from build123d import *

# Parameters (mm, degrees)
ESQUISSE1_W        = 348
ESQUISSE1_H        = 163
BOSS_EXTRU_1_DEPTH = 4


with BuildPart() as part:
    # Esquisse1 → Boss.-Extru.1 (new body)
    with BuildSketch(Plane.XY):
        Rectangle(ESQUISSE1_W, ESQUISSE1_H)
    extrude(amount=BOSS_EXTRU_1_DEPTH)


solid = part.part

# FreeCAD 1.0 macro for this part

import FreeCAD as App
import Part
import Sketcher
from FreeCAD import Vector

doc = App.newDocument("Part")
body = doc.addObject("PartDesign::Body", "Body")

# Sketch on XY plane
sketch1 = doc.addObject("Sketcher::SketchObject", "Sketch")
body.addObject(sketch1)
sketch1.AttachmentSupport = (doc.XY_Plane, [""])
sketch1.MapMode = "FlatFace"
sketch1.addGeometry(Part.LineSegment(Vector(-174, 82, 0), Vector(-174, -82, 0)), False)
sketch1.addGeometry(Part.LineSegment(Vector(-174, -82, 0), Vector(174, -82, 0)), False)
sketch1.addGeometry(Part.LineSegment(Vector(174, -82, 0), Vector(174, 82, 0)), False)
sketch1.addGeometry(Part.LineSegment(Vector(174, 82, 0), Vector(-174, 82, 0)), False)
sketch1.addConstraint(Sketcher.Constraint("Coincident", 0, 2, 1, 1))
sketch1.addConstraint(Sketcher.Constraint("Coincident", 1, 2, 2, 1))
sketch1.addConstraint(Sketcher.Constraint("Coincident", 2, 2, 3, 1))
sketch1.addConstraint(Sketcher.Constraint("Coincident", 3, 2, 0, 1))
sketch1.addConstraint(Sketcher.Constraint("Vertical", 0))
sketch1.addConstraint(Sketcher.Constraint("Horizontal", 1))
sketch1.addConstraint(Sketcher.Constraint("Vertical", 2))
sketch1.addConstraint(Sketcher.Constraint("Horizontal", 3))
sketch1.addConstraint(Sketcher.Constraint("Symmetric", 0, 2, 2, 2, -1, 1))
sketch1.addConstraint(Sketcher.Constraint("DistanceX", 1, 1, 1, 2, 348.0))
sketch1.addConstraint(Sketcher.Constraint("DistanceY", 0, 2, 0, 1, 163.0))
pad1 = doc.addObject("PartDesign::Pad", "Pad")
body.addObject(pad1)
pad1.Profile = sketch1
pad1.Length = 4

doc.recompute()
